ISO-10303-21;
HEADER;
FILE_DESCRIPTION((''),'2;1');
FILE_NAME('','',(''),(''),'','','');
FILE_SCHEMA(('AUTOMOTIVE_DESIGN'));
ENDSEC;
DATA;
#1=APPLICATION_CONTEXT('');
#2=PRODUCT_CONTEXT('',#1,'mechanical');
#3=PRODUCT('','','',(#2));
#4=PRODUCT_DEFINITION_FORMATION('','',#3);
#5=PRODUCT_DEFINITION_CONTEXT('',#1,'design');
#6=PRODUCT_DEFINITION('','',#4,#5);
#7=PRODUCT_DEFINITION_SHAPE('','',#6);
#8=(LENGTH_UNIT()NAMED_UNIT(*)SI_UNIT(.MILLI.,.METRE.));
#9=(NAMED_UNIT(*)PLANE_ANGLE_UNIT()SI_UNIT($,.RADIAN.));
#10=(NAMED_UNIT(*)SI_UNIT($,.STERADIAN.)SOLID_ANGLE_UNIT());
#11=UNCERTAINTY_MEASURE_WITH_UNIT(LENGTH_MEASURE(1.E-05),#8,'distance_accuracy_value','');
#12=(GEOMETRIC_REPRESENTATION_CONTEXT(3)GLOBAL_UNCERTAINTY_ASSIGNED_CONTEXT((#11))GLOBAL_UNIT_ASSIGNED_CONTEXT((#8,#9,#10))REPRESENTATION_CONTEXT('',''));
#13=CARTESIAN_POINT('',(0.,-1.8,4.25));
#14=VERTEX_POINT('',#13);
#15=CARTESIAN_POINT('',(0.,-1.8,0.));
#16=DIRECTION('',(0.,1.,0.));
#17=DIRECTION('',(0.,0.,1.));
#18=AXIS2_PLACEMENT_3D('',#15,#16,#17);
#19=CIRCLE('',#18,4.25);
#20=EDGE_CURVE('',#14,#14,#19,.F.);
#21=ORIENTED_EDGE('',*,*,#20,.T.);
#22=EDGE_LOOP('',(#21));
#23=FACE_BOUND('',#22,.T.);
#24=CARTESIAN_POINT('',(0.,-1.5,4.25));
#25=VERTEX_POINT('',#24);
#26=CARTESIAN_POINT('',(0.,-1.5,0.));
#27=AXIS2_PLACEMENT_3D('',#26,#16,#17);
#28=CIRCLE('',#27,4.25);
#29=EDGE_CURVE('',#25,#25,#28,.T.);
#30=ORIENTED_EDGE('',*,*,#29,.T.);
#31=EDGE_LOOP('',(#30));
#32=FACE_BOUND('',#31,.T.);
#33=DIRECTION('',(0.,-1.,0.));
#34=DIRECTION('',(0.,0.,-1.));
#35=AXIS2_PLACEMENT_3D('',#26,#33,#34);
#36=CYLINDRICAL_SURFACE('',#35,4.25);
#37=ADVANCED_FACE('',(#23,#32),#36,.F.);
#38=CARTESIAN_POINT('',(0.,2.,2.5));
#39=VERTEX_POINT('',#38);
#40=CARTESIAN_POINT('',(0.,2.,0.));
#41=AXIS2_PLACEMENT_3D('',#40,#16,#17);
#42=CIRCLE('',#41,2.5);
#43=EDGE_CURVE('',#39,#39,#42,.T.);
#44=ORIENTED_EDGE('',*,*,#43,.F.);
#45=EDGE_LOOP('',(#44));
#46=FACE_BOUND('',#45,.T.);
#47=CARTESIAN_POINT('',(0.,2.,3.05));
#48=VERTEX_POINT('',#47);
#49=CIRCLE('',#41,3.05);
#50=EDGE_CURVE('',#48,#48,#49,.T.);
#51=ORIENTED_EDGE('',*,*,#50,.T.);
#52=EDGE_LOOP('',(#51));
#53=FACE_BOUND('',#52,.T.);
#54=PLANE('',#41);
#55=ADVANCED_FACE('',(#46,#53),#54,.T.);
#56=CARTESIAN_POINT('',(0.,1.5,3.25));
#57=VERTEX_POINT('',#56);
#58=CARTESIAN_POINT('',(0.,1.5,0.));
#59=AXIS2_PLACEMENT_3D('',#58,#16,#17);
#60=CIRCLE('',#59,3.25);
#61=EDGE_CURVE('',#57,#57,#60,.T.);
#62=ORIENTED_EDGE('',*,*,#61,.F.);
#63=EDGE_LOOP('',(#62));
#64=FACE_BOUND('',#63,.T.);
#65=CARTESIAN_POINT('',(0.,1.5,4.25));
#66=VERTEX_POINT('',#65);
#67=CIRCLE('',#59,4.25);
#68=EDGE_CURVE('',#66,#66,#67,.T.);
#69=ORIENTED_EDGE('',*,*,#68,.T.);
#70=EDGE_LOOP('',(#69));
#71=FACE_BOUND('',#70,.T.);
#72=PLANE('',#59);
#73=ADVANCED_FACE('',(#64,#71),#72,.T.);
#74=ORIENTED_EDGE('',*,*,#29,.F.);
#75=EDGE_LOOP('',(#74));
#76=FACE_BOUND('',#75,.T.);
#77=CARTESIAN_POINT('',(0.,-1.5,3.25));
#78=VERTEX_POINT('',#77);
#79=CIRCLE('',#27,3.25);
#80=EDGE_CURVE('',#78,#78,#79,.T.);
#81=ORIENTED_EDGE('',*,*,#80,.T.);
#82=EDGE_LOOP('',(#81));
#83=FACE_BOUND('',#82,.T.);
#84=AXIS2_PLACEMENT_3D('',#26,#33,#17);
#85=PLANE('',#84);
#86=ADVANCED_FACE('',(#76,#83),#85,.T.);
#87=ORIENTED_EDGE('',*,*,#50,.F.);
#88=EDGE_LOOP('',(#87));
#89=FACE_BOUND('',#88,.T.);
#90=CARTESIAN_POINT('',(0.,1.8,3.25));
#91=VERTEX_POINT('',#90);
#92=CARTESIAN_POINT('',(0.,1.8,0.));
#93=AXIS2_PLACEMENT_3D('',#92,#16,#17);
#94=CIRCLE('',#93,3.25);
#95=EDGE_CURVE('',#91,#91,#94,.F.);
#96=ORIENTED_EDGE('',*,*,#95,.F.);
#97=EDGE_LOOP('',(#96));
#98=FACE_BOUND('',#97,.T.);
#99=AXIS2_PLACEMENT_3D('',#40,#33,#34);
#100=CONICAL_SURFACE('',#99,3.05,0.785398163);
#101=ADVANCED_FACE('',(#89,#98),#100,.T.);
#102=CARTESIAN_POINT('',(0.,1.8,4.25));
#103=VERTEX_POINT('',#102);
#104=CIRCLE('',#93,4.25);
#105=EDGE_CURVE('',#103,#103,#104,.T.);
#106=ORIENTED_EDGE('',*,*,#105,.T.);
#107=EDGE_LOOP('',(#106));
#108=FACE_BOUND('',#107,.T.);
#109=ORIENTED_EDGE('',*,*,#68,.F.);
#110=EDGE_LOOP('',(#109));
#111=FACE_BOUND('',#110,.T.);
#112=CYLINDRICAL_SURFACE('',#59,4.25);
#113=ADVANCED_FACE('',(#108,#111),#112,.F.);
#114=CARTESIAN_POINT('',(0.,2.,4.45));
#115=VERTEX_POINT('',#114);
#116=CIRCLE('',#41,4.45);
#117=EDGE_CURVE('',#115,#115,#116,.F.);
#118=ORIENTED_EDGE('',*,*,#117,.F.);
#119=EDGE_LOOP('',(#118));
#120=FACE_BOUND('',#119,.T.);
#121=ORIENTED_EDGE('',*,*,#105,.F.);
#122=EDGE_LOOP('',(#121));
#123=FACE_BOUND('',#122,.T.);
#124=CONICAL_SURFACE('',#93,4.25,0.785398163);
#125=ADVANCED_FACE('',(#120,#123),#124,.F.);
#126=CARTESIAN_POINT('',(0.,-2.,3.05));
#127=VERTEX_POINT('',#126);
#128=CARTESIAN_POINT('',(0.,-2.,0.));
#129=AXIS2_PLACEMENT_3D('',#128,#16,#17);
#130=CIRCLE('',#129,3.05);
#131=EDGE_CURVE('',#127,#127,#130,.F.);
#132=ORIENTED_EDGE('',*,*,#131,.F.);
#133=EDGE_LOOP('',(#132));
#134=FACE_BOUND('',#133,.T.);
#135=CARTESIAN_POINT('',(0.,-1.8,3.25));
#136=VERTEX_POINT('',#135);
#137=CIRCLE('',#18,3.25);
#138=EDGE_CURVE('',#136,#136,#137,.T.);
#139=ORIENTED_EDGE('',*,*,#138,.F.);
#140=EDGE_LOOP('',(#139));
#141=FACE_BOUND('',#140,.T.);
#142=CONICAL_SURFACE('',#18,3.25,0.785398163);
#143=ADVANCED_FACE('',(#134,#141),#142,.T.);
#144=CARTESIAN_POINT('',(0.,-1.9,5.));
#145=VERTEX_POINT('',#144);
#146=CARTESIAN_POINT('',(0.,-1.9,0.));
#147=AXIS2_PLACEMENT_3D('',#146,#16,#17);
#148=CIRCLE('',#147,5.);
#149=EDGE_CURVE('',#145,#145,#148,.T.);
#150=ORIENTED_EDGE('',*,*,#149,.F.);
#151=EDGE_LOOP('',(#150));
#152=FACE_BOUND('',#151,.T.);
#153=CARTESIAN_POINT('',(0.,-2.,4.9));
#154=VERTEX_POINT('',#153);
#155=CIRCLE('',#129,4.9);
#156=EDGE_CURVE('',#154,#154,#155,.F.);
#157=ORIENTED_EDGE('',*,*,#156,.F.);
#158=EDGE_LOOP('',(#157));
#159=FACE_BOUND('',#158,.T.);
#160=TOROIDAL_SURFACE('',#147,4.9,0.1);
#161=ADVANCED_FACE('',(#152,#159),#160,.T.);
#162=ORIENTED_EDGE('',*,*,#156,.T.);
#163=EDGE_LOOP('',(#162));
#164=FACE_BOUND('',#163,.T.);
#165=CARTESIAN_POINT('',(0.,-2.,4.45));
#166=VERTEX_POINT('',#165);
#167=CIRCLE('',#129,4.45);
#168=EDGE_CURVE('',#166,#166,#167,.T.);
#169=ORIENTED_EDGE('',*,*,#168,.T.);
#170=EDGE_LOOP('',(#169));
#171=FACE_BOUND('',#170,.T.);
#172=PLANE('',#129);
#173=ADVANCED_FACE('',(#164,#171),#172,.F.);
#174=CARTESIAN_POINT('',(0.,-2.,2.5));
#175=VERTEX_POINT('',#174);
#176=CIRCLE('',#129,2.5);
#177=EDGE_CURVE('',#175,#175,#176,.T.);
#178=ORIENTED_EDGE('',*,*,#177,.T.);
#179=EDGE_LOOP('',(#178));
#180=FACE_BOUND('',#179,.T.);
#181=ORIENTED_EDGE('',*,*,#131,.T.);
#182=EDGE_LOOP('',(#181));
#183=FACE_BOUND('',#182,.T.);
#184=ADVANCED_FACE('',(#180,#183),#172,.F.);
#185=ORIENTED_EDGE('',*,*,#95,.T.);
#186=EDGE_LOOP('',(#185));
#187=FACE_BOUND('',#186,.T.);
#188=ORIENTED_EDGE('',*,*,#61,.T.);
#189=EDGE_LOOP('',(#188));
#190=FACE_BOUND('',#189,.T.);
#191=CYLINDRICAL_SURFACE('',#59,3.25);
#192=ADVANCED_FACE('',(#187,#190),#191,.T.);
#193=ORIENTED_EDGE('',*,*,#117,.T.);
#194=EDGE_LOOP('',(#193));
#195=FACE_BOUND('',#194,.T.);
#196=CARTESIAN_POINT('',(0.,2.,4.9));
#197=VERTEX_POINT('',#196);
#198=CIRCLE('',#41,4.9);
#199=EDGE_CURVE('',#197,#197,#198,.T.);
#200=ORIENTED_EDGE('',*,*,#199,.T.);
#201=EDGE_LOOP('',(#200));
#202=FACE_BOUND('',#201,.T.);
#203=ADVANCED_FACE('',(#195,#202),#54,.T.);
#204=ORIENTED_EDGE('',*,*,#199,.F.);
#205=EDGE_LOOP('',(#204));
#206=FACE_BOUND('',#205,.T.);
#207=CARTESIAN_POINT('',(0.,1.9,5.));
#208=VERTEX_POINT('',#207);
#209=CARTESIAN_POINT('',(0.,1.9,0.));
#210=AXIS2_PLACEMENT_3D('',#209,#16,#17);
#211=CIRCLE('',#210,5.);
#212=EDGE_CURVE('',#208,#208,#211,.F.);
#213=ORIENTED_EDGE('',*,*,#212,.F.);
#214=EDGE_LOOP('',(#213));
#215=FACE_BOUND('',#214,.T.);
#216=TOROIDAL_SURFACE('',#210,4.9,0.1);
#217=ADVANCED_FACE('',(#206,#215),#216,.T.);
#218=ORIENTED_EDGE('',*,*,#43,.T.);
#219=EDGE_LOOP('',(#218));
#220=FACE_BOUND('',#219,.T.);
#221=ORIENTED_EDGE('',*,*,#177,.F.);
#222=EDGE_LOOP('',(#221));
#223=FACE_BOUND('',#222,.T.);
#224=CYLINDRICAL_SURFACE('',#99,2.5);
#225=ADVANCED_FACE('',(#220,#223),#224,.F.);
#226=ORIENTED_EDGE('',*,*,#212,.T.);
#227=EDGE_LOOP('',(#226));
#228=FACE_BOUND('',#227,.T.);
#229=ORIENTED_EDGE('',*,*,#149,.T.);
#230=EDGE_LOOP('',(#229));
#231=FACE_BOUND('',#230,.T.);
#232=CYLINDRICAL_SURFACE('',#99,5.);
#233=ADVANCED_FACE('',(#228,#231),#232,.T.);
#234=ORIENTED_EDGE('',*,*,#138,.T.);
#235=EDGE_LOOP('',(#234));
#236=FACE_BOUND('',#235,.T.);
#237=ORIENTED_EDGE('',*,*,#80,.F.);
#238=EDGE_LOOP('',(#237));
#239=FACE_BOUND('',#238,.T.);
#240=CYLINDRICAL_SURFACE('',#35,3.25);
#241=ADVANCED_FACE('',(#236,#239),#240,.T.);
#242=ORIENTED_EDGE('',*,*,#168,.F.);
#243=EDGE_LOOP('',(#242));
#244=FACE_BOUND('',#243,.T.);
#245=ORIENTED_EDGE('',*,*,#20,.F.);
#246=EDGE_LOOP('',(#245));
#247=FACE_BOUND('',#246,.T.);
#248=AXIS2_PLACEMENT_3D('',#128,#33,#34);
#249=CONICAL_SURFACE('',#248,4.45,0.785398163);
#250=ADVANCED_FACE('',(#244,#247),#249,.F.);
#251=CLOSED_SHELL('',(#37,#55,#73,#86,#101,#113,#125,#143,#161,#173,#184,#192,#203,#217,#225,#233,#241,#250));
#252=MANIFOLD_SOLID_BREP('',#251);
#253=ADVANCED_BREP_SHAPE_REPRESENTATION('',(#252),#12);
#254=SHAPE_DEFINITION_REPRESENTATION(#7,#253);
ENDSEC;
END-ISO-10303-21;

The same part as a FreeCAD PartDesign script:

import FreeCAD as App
import Part
import Sketcher

V = App.Vector
Q = App.Units.Quantity


def edges_at(feature, points):
    """Names of the edges that pass closest to the given points."""
    edges = feature.Shape.Edges
    near = lambda p: min(range(len(edges)), key=lambda i: edges[i].distToShape(Part.Vertex(*p))[0])
    return sorted({f"Edge{near(p) + 1}" for p in points})

doc = App.newDocument("Part")
body = doc.addObject("PartDesign::Body", "Body")

sketch1 = body.newObject("Sketcher::SketchObject", "Sketch")
sketch1.AttachmentSupport = (doc.getObject("XZ_Plane"), [""])
sketch1.MapMode = "FlatFace"
sketch1.addGeometry(Part.Circle(V(0, 0, 0), V(0, 0, 1), 5), False)
sketch1.addGeometry(Part.Circle(V(0, 0, 0), V(0, 0, 1), 2.5), False)
sketch1.addConstraint(Sketcher.Constraint("Coincident", 0, 3, -1, 1))
sketch1.addConstraint(Sketcher.Constraint("Coincident", 1, 3, -1, 1))
sketch1.addConstraint(Sketcher.Constraint("Diameter", 0, Q("10 mm")))
sketch1.addConstraint(Sketcher.Constraint("Diameter", 1, Q("5 mm")))
pad1 = body.newObject("PartDesign::Pad", "Pad")
pad1.Profile = sketch1
pad1.Length = 4
pad1.Midplane = True

sketch2 = body.newObject("Sketcher::SketchObject", "Sketch001")
sketch2.AttachmentSupport = (doc.getObject("XZ_Plane"), [""])
sketch2.MapMode = "FlatFace"
sketch2.AttachmentOffset = App.Placement(V(0, 0, -2), App.Rotation())
sketch2.addGeometry(Part.Circle(V(0, 0, 0), V(0, 0, 1), 4.2), False)
sketch2.addGeometry(Part.Circle(V(0, 0, 0), V(0, 0, 1), 3.2), False)
sketch2.addConstraint(Sketcher.Constraint("Coincident", 0, 3, -1, 1))
sketch2.addConstraint(Sketcher.Constraint("Coincident", 1, 3, -1, 1))
sketch2.addConstraint(Sketcher.Constraint("Diameter", 0, Q("8.5 mm")))
sketch2.addConstraint(Sketcher.Constraint("Diameter", 1, Q("6.5 mm")))
pocket1 = body.newObject("PartDesign::Pocket", "Pocket")
pocket1.Profile = sketch2
pocket1.Length = 0.5
pocket1.Reversed = True
doc.recompute()

mirrored = body.newObject("PartDesign::Mirrored", "Mirrored")
mirrored.Originals = [pocket1]
mirrored.MirrorPlane = (doc.getObject("XZ_Plane"), [""])
body.Tip = mirrored
doc.recompute()

chamfer = body.newObject("PartDesign::Chamfer", "Chamfer")
chamfer.Base = (mirrored, edges_at(mirrored, [
    (-4.25, 2, 0),
    (-3.25, 2, 0),
    (-3.25, -2, 0),
    (-4.25, -2, 0),
]))
chamfer.Size = 0.2
doc.recompute()

fillet = body.newObject("PartDesign::Fillet", "Fillet")
fillet.Base = (chamfer, edges_at(chamfer, [(-5, -2, 0), (-5, 2, 0)]))
fillet.Radius = 0.1

doc.recompute()
